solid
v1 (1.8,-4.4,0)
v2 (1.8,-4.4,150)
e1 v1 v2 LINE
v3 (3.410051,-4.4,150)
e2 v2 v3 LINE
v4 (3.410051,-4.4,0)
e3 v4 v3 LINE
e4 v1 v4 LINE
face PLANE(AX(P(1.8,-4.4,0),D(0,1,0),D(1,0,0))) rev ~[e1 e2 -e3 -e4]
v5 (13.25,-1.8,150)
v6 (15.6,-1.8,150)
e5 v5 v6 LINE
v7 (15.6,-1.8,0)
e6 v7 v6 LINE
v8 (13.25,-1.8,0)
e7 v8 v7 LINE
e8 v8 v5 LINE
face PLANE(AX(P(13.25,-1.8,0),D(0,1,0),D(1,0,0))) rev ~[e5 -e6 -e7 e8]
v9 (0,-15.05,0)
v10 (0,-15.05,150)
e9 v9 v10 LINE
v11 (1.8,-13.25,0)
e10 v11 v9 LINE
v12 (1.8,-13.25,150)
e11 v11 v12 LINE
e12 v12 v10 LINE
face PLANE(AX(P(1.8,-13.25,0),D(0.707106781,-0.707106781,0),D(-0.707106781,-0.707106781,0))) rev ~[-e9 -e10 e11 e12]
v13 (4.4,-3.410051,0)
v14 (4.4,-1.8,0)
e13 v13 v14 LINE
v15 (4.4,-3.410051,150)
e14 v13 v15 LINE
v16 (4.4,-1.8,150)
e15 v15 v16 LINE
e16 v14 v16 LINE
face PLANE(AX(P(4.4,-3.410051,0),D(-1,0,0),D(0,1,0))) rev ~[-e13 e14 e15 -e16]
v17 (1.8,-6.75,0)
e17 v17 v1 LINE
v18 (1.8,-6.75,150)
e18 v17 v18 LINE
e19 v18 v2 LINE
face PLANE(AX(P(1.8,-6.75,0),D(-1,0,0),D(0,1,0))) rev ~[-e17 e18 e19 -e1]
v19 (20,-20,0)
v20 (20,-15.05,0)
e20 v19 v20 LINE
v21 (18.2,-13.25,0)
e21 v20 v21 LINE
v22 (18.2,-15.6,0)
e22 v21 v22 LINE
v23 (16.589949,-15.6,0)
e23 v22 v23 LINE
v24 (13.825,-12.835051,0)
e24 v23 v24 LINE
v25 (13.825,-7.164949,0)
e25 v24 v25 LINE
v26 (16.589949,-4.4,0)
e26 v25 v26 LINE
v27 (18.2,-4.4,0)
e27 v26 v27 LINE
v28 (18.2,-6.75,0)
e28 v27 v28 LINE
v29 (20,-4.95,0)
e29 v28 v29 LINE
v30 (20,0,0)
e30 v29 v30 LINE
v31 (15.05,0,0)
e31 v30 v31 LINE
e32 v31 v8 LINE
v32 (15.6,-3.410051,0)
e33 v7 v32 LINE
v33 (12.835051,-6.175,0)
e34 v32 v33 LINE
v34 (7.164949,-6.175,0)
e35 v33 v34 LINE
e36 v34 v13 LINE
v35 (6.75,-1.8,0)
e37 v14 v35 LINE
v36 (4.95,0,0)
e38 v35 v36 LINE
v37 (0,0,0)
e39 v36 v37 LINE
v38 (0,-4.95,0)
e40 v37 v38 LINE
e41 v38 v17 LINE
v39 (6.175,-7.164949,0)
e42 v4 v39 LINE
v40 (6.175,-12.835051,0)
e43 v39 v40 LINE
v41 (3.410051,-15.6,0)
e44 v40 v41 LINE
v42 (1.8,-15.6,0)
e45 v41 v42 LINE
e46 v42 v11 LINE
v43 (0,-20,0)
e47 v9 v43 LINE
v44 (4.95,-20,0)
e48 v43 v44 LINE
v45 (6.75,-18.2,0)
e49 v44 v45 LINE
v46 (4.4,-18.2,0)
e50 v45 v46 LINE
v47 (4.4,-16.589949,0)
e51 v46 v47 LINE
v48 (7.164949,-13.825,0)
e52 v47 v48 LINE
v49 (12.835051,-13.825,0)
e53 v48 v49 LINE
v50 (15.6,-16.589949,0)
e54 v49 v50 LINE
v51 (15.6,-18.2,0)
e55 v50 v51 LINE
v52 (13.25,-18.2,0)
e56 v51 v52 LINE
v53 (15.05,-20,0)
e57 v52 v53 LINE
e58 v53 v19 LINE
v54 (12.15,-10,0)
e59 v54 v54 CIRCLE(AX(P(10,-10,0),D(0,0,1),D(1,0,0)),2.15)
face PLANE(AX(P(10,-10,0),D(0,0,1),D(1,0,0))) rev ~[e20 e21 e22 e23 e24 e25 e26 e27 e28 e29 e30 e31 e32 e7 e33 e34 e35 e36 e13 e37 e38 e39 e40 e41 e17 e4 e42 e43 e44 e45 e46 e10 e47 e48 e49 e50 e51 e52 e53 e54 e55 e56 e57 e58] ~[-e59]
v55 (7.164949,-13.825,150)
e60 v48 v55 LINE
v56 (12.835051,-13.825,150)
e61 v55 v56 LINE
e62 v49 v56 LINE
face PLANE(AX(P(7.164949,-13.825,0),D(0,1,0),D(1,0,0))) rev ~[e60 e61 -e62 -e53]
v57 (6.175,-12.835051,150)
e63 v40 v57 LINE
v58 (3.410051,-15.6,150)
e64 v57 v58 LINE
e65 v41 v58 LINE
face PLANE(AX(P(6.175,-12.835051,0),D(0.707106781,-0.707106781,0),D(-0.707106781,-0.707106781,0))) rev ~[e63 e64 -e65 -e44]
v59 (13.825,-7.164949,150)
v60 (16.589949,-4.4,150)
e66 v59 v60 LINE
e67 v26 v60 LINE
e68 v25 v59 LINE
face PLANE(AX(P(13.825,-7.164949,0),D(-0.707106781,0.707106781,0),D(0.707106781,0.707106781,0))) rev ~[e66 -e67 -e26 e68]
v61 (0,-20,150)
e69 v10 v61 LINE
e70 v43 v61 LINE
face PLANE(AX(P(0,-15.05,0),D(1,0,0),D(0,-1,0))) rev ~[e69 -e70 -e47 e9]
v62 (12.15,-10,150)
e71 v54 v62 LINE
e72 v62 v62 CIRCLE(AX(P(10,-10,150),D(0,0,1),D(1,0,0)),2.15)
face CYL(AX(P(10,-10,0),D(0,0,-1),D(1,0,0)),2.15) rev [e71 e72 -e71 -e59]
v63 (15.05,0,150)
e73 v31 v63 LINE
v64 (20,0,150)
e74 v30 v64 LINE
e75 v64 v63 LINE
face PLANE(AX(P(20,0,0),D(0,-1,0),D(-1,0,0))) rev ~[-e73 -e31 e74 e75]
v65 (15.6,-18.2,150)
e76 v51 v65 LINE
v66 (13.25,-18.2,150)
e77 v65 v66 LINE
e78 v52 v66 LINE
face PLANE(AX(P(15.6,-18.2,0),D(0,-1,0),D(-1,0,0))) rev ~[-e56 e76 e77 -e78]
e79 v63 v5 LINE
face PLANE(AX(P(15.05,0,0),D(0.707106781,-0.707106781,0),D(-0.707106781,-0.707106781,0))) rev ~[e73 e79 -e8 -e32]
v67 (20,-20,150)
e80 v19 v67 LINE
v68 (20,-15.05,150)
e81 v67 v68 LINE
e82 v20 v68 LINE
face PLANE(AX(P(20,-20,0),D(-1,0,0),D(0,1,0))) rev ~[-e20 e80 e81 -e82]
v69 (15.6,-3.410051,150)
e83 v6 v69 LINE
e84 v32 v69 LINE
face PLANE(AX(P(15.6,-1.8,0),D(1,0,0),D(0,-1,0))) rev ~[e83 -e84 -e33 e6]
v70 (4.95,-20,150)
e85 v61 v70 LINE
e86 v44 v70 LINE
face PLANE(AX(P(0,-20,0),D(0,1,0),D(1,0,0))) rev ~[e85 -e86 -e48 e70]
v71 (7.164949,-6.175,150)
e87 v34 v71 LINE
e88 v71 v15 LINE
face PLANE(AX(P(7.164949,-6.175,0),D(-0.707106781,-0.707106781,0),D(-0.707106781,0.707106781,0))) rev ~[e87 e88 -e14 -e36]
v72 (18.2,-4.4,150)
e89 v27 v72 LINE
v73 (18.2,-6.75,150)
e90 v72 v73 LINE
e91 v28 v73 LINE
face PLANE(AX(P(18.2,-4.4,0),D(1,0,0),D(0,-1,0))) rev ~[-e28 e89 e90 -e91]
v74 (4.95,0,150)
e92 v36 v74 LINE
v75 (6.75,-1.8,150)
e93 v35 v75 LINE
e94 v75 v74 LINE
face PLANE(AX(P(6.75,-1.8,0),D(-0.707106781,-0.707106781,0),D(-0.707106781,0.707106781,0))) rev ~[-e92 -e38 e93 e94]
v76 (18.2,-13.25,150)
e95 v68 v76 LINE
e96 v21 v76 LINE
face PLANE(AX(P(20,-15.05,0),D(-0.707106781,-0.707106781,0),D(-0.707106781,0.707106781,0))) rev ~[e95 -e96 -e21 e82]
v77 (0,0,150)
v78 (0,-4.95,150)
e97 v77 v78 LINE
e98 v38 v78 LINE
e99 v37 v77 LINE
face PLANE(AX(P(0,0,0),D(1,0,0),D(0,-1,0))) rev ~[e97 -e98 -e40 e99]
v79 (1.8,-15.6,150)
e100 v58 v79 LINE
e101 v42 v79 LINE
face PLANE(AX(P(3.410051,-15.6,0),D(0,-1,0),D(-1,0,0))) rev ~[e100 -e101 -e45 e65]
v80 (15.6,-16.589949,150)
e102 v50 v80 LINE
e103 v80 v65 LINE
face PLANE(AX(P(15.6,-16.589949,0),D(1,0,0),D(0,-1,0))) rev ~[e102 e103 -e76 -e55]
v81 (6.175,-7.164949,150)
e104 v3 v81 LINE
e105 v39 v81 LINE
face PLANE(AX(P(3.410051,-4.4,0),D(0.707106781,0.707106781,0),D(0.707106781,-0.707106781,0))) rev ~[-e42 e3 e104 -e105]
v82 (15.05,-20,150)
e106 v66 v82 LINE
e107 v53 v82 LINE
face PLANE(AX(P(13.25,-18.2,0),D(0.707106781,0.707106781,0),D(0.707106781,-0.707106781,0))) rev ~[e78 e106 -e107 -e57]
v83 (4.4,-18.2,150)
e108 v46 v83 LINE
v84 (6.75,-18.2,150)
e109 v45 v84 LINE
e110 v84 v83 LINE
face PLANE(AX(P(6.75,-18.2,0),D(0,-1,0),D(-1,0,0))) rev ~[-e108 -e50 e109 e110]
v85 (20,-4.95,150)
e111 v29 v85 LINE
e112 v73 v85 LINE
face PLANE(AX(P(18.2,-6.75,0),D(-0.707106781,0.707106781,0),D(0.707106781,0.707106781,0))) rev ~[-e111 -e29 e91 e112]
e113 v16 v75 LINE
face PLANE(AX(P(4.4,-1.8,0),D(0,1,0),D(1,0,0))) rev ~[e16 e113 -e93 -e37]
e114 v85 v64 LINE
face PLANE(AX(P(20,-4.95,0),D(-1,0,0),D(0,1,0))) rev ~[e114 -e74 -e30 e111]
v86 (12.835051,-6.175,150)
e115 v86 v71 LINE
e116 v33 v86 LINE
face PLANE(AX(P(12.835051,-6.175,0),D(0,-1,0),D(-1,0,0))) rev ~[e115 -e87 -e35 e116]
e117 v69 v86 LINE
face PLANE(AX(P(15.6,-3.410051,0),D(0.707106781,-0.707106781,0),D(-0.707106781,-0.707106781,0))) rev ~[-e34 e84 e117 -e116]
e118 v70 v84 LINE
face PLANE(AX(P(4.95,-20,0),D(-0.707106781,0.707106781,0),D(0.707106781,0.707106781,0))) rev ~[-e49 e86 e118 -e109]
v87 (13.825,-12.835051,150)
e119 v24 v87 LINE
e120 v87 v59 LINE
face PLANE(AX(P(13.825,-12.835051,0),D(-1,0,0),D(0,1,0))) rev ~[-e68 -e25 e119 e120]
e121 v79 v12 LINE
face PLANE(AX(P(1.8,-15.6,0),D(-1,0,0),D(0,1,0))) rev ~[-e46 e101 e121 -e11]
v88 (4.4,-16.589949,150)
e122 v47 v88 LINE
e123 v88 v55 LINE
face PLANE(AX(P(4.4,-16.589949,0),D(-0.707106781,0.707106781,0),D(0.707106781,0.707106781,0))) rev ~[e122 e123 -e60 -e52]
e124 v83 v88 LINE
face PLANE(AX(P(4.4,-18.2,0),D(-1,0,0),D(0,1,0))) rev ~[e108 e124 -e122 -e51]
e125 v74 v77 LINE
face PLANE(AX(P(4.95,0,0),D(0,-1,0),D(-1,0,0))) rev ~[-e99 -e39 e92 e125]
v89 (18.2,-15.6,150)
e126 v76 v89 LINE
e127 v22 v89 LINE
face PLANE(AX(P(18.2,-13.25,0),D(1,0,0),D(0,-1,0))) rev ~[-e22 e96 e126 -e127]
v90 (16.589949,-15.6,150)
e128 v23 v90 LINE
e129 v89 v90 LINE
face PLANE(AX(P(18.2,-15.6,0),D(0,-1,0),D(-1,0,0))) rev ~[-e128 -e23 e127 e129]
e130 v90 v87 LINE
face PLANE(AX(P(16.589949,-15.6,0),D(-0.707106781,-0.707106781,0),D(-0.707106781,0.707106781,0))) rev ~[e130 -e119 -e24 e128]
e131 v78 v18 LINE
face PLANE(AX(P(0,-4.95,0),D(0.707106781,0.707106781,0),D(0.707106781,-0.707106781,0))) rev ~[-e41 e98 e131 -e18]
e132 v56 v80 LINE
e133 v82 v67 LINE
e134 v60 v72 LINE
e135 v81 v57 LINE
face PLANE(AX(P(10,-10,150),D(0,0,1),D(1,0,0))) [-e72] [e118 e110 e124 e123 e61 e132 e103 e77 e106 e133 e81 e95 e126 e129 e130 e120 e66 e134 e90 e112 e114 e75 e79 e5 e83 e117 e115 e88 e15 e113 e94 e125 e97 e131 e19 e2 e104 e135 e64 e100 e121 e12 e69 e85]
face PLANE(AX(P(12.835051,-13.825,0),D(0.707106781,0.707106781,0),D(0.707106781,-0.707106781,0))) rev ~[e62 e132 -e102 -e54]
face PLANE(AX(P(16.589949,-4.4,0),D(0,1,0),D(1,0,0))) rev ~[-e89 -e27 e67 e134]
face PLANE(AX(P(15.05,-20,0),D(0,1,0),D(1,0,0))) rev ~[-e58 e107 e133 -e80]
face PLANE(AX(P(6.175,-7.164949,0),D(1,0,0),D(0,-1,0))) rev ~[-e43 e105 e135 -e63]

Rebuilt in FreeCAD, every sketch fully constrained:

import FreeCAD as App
import Part
import Sketcher
from FreeCAD import Vector
Q = App.Units.Quantity

doc = App.newDocument("Part")
body = doc.addObject("PartDesign::Body", "Body")

sketch1 = doc.addObject("Sketcher::SketchObject", "Sketch")
body.addObject(sketch1)
sketch1.AttachmentSupport = (doc.XY_Plane, [""])
sketch1.MapMode = "FlatFace"
sketch1.addGeometry([
    Part.LineSegment(Vector(0, 0, 0), Vector(0, -5, 0)),
    Part.LineSegment(Vector(0, -5, 0), Vector(1.8, -6.8, 0)),
    Part.LineSegment(Vector(1.8, -6.8, 0), Vector(1.8, -4.4, 0)),
    Part.LineSegment(Vector(1.8, -4.4, 0), Vector(3.4, -4.4, 0)),
    Part.LineSegment(Vector(3.4, -4.4, 0), Vector(6.2, -7.2, 0)),
    Part.LineSegment(Vector(6.2, -7.2, 0), Vector(6.2, -12.8, 0)),
    Part.LineSegment(Vector(6.2, -12.8, 0), Vector(3.4, -15.6, 0)),
    Part.LineSegment(Vector(3.4, -15.6, 0), Vector(1.8, -15.6, 0)),
    Part.LineSegment(Vector(1.8, -15.6, 0), Vector(1.8, -13.2, 0)),
    Part.LineSegment(Vector(1.8, -13.2, 0), Vector(0, -15.1, 0)),
    Part.LineSegment(Vector(0, -15.1, 0), Vector(0, -20, 0)),
    Part.LineSegment(Vector(0, -20, 0), Vector(5, -20, 0)),
    Part.LineSegment(Vector(5, -20, 0), Vector(6.8, -18.2, 0)),
    Part.LineSegment(Vector(6.8, -18.2, 0), Vector(4.4, -18.2, 0)),
    Part.LineSegment(Vector(4.4, -18.2, 0), Vector(4.4, -16.6, 0)),
    Part.LineSegment(Vector(4.4, -16.6, 0), Vector(7.2, -13.8, 0)),
    Part.LineSegment(Vector(7.2, -13.8, 0), Vector(12.8, -13.8, 0)),
    Part.LineSegment(Vector(12.8, -13.8, 0), Vector(15.6, -16.6, 0)),
    Part.LineSegment(Vector(15.6, -16.6, 0), Vector(15.6, -18.2, 0)),
    Part.LineSegment(Vector(15.6, -18.2, 0), Vector(13.2, -18.2, 0)),
    Part.LineSegment(Vector(13.2, -18.2, 0), Vector(15.1, -20, 0)),
    Part.LineSegment(Vector(15.1, -20, 0), Vector(20, -20, 0)),
    Part.LineSegment(Vector(20, -20, 0), Vector(20, -15.1, 0)),
    Part.LineSegment(Vector(20, -15.1, 0), Vector(18.2, -13.2, 0)),
    Part.LineSegment(Vector(18.2, -13.2, 0), Vector(18.2, -15.6, 0)),
    Part.LineSegment(Vector(18.2, -15.6, 0), Vector(16.6, -15.6, 0)),
    Part.LineSegment(Vector(16.6, -15.6, 0), Vector(13.8, -12.8, 0)),
    Part.LineSegment(Vector(13.8, -12.8, 0), Vector(13.8, -7.2, 0)),
    Part.LineSegment(Vector(13.8, -7.2, 0), Vector(16.6, -4.4, 0)),
    Part.LineSegment(Vector(16.6, -4.4, 0), Vector(18.2, -4.4, 0)),
    Part.LineSegment(Vector(18.2, -4.4, 0), Vector(18.2, -6.8, 0)),
    Part.LineSegment(Vector(18.2, -6.8, 0), Vector(20, -5, 0)),
    Part.LineSegment(Vector(20, -5, 0), Vector(20, 0, 0)),
    Part.LineSegment(Vector(20, 0, 0), Vector(15.1, 0, 0)),
    Part.LineSegment(Vector(15.1, 0, 0), Vector(13.2, -1.8, 0)),
    Part.LineSegment(Vector(13.2, -1.8, 0), Vector(15.6, -1.8, 0)),
    Part.LineSegment(Vector(15.6, -1.8, 0), Vector(15.6, -3.4, 0)),
    Part.LineSegment(Vector(15.6, -3.4, 0), Vector(12.8, -6.2, 0)),
    Part.LineSegment(Vector(12.8, -6.2, 0), Vector(7.2, -6.2, 0)),
    Part.LineSegment(Vector(7.2, -6.2, 0), Vector(4.4, -3.4, 0)),
    Part.LineSegment(Vector(4.4, -3.4, 0), Vector(4.4, -1.8, 0)),
    Part.LineSegment(Vector(4.4, -1.8, 0), Vector(6.8, -1.8, 0)),
    Part.LineSegment(Vector(6.8, -1.8, 0), Vector(5, 0, 0)),
    Part.LineSegment(Vector(5, 0, 0), Vector(0, 0, 0)),
    Part.Circle(Vector(10, -10, 0), Vector(0, 0, 1), 2.1),
], False)
sketch1.addConstraint([
    Sketcher.Constraint("Coincident", 0, 2, 1, 1),
    Sketcher.Constraint("Coincident", 1, 2, 2, 1),
    Sketcher.Constraint("Coincident", 2, 2, 3, 1),
    Sketcher.Constraint("Coincident", 3, 2, 4, 1),
    Sketcher.Constraint("Coincident", 4, 2, 5, 1),
    Sketcher.Constraint("Coincident", 5, 2, 6, 1),
    Sketcher.Constraint("Coincident", 6, 2, 7, 1),
    Sketcher.Constraint("Coincident", 7, 2, 8, 1),
    Sketcher.Constraint("Coincident", 8, 2, 9, 1),
    Sketcher.Constraint("Coincident", 9, 2, 10, 1),
    Sketcher.Constraint("Coincident", 10, 2, 11, 1),
    Sketcher.Constraint("Coincident", 11, 2, 12, 1),
    Sketcher.Constraint("Coincident", 12, 2, 13, 1),
    Sketcher.Constraint("Coincident", 13, 2, 14, 1),
    Sketcher.Constraint("Coincident", 14, 2, 15, 1),
    Sketcher.Constraint("Coincident", 15, 2, 16, 1),
    Sketcher.Constraint("Coincident", 16, 2, 17, 1),
    Sketcher.Constraint("Coincident", 17, 2, 18, 1),
    Sketcher.Constraint("Coincident", 18, 2, 19, 1),
    Sketcher.Constraint("Coincident", 19, 2, 20, 1),
    Sketcher.Constraint("Coincident", 20, 2, 21, 1),
    Sketcher.Constraint("Coincident", 21, 2, 22, 1),
    Sketcher.Constraint("Coincident", 22, 2, 23, 1),
    Sketcher.Constraint("Coincident", 23, 2, 24, 1),
    Sketcher.Constraint("Coincident", 24, 2, 25, 1),
    Sketcher.Constraint("Coincident", 25, 2, 26, 1),
    Sketcher.Constraint("Coincident", 26, 2, 27, 1),
    Sketcher.Constraint("Coincident", 27, 2, 28, 1),
    Sketcher.Constraint("Coincident", 28, 2, 29, 1),
    Sketcher.Constraint("Coincident", 29, 2, 30, 1),
    Sketcher.Constraint("Coincident", 30, 2, 31, 1),
    Sketcher.Constraint("Coincident", 31, 2, 32, 1),
    Sketcher.Constraint("Coincident", 32, 2, 33, 1),
    Sketcher.Constraint("Coincident", 33, 2, 34, 1),
    Sketcher.Constraint("Coincident", 34, 2, 35, 1),
    Sketcher.Constraint("Coincident", 35, 2, 36, 1),
    Sketcher.Constraint("Coincident", 36, 2, 37, 1),
    Sketcher.Constraint("Coincident", 37, 2, 38, 1),
    Sketcher.Constraint("Coincident", 38, 2, 39, 1),
    Sketcher.Constraint("Coincident", 39, 2, 40, 1),
    Sketcher.Constraint("Coincident", 40, 2, 41, 1),
    Sketcher.Constraint("Coincident", 41, 2, 42, 1),
    Sketcher.Constraint("Coincident", 42, 2, 43, 1),
    Sketcher.Constraint("Coincident", 43, 2, 0, 1),
    Sketcher.Constraint("Vertical", 0),
    Sketcher.Constraint("Vertical", 2),
    Sketcher.Constraint("Horizontal", 3),
    Sketcher.Constraint("Vertical", 5),
    Sketcher.Constraint("Horizontal", 7),
    Sketcher.Constraint("Vertical", 8),
    Sketcher.Constraint("Vertical", 10),
    Sketcher.Constraint("Horizontal", 11),
    Sketcher.Constraint("Horizontal", 13),
    Sketcher.Constraint("Vertical", 14),
    Sketcher.Constraint("Horizontal", 16),
    Sketcher.Constraint("Vertical", 18),
    Sketcher.Constraint("Horizontal", 19),
    Sketcher.Constraint("Horizontal", 21),
    Sketcher.Constraint("Vertical", 22),
    Sketcher.Constraint("Vertical", 24),
    Sketcher.Constraint("Horizontal", 25),
    Sketcher.Constraint("Vertical", 27),
    Sketcher.Constraint("Horizontal", 29),
    Sketcher.Constraint("Vertical", 30),
    Sketcher.Constraint("Vertical", 32),
    Sketcher.Constraint("Horizontal", 33),
    Sketcher.Constraint("Horizontal", 35),
    Sketcher.Constraint("Vertical", 36),
    Sketcher.Constraint("Horizontal", 38),
    Sketcher.Constraint("Vertical", 40),
    Sketcher.Constraint("Horizontal", 41),
    Sketcher.Constraint("Horizontal", 43),
    Sketcher.Constraint("Coincident", 43, 2, -1, 1),
    Sketcher.Constraint("PointOnObject", 9, 2, -2),
    Sketcher.Constraint("PointOnObject", 32, 2, -1),
    Sketcher.Constraint("Parallel", 1, 4),
    Sketcher.Constraint("Perpendicular", 4, 6),
    Sketcher.Constraint("Parallel", 6, 9),
    Sketcher.Constraint("Parallel", 9, 12),
    Sketcher.Constraint("Parallel", 12, 15),
    Sketcher.Constraint("Perpendicular", 15, 17),
    Sketcher.Constraint("Parallel", 17, 20),
    Sketcher.Constraint("Parallel", 20, 23),
    Sketcher.Constraint("Parallel", 23, 26),
    Sketcher.Constraint("Perpendicular", 26, 28),
    Sketcher.Constraint("Parallel", 28, 31),
    Sketcher.Constraint("Parallel", 31, 34),
    Sketcher.Constraint("Parallel", 34, 37),
    Sketcher.Constraint("Perpendicular", 37, 39),
    Sketcher.Constraint("Parallel", 39, 42),
    Sketcher.Constraint("Horizontal", 14, 2, 17, 2),
    Sketcher.Constraint("Horizontal", 13, 2, 18, 2),
    Sketcher.Constraint("Horizontal", 11, 2, 20, 2),
    Sketcher.Constraint("Horizontal", 9, 2, 22, 2),
    Sketcher.Constraint("Horizontal", 8, 2, 23, 2),
    Sketcher.Constraint("Horizontal", 7, 2, 24, 2),
    Sketcher.Constraint("Horizontal", 5, 2, 26, 2),
    Sketcher.Constraint("Horizontal", 4, 2, 27, 2),
    Sketcher.Constraint("Horizontal", 3, 2, 28, 2),
    Sketcher.Constraint("Horizontal", 1, 2, 30, 2),
    Sketcher.Constraint("Horizontal", 0, 2, 31, 2),
    Sketcher.Constraint("Horizontal", 36, 2, 39, 2),
    Sketcher.Constraint("Horizontal", 35, 2, 40, 2),
    Sketcher.Constraint("Vertical", 3, 2, 6, 2),
    Sketcher.Constraint("Vertical", 2, 2, 7, 2),
    Sketcher.Constraint("Vertical", 25, 2, 28, 2),
    Sketcher.Constraint("Vertical", 24, 2, 29, 2),
    Sketcher.Constraint("Vertical", 20, 2, 33, 2),
    Sketcher.Constraint("Vertical", 19, 2, 34, 2),
    Sketcher.Constraint("Vertical", 18, 2, 35, 2),
    Sketcher.Constraint("Vertical", 16, 2, 37, 2),
    Sketcher.Constraint("Vertical", 15, 2, 38, 2),
    Sketcher.Constraint("Vertical", 12, 2, 41, 2),
    Sketcher.Constraint("Equal", 13, 19),
    Sketcher.Constraint("Equal", 11, 21),
    Sketcher.Constraint("Equal", 7, 25),
    Sketcher.Constraint("Equal", 43, 0),
    Sketcher.Constraint("Equal", 41, 2),
    Sketcher.Constraint("Equal", 38, 5),
    Sketcher.Constraint("Equal", 2, 8),
    Sketcher.Constraint("Equal", 0, 10),
    Sketcher.Constraint("Equal", 29, 14),
    Sketcher.Constraint("Equal", 18, 36),
    Sketcher.Constraint("Equal", 9, 12),
    Sketcher.Constraint("Equal", 6, 15),
    Sketcher.Constraint("Diameter", 44, Q("4.3 mm")),
    Sketcher.Constraint("DistanceX", -1, 1, 44, 3, Q("10 mm")),
    Sketcher.Constraint("DistanceY", 44, 3, -1, 1, Q("10 mm")),
    Sketcher.Constraint("DistanceY", 10, 2, -1, 1, Q("20 mm")),
    Sketcher.Constraint("DistanceX", 11, 1, 11, 2, Q("4.95 mm")),
    Sketcher.Constraint("DistanceX", 13, 2, 13, 1, Q("2.35 mm")),
    Sketcher.Constraint("DistanceX", -1, 1, 1, 2, Q("1.8 mm")),
    Sketcher.Constraint("DistanceX", 4, 2, 27, 2, Q("7.65 mm")),
    Sketcher.Constraint("DistanceX", 16, 1, 16, 2, Q("5.670101 mm")),
])
pad1 = doc.addObject("PartDesign::Pad", "Pad")
body.addObject(pad1)
pad1.Profile = sketch1
pad1.Length = 150

doc.recompute()
